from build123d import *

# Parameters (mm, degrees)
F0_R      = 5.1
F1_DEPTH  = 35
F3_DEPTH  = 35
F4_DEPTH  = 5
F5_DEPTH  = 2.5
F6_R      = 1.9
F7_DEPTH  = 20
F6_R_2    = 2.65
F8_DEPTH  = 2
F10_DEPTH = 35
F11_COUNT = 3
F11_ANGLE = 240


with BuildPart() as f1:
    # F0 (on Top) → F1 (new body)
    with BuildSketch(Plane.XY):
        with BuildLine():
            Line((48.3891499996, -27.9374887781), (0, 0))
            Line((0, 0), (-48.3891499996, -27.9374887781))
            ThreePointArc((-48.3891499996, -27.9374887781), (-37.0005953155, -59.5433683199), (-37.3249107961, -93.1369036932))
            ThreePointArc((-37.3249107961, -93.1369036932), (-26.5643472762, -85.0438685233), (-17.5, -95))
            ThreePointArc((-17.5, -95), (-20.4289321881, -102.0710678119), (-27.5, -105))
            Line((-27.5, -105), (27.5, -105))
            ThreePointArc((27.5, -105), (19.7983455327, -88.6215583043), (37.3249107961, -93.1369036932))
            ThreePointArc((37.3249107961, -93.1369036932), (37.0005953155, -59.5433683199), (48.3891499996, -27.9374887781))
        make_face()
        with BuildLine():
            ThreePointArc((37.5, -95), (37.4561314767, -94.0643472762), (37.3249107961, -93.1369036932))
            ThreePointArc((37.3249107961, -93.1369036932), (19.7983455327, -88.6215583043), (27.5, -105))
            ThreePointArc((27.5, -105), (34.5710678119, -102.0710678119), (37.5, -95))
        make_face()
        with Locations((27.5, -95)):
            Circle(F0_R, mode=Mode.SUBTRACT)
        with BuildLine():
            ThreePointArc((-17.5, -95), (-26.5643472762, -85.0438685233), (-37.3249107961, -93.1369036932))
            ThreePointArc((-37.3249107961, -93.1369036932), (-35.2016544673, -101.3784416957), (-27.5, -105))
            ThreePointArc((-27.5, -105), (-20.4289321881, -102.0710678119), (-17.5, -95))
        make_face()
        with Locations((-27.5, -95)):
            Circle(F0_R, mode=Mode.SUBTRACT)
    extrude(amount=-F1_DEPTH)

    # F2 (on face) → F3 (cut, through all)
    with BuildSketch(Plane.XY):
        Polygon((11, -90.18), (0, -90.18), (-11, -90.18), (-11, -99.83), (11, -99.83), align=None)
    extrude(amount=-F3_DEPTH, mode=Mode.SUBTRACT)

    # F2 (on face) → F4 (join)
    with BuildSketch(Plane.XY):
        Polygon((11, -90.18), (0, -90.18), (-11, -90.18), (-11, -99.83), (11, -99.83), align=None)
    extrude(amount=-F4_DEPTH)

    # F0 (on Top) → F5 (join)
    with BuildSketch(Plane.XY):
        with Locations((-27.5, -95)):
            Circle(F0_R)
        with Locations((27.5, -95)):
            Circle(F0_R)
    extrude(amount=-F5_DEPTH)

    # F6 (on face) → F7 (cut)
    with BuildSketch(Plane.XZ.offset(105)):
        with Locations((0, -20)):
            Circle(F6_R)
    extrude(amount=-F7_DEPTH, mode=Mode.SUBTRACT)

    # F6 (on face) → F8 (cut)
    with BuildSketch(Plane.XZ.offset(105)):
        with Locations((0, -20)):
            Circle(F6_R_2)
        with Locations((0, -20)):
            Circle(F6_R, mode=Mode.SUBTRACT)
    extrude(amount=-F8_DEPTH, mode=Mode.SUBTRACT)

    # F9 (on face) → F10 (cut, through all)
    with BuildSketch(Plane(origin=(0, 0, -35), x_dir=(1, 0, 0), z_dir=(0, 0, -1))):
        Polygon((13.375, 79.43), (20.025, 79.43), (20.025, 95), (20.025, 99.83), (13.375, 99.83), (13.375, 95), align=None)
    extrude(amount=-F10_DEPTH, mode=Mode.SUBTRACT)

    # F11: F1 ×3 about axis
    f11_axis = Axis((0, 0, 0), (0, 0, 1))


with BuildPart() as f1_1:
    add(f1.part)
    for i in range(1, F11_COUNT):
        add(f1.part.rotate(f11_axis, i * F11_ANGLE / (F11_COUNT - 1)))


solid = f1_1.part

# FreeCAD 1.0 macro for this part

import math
import FreeCAD as App
import Part
import Sketcher
Q = App.Units.Quantity

doc = App.newDocument("Part")
body = doc.addObject("PartDesign::Body", "Body")

# Sketch on XY plane
sketch1 = doc.addObject("Sketcher::SketchObject", "Sketch")
body.addObject(sketch1)
sketch1.AttachmentSupport = (doc.XY_Plane, [""])
sketch1.MapMode = "FlatFace"
sketch1.addGeometry([
    Part.LineSegment(App.Vector(48.4, -27.9, 0), App.Vector(0, 0, 0)),  # 0
    Part.LineSegment(App.Vector(0, 0, 0), App.Vector(-48.4, -27.9, 0)),  # 1
    Part.ArcOfCircle(Part.Circle(App.Vector(-130.7, -75.4, 0), App.Vector(0, 0, 1), 95), math.radians(-11), math.radians(30)),  # 2
    Part.ArcOfCircle(Part.Circle(App.Vector(-27.5, -95, 0), App.Vector(0, 0, 1), 10), math.radians(169), math.radians(270)),  # 3
    Part.LineSegment(App.Vector(-27.5, -105, 0), App.Vector(27.5, -105, 0)),  # 4
    Part.ArcOfCircle(Part.Circle(App.Vector(27.5, -95, 0), App.Vector(0, 0, 1), 10), math.radians(-90), math.radians(0)),  # 5
    Part.ArcOfCircle(Part.Circle(App.Vector(27.5, -95, 0), App.Vector(0, 0, 1), 10), math.radians(0), math.radians(10.74)),  # 6
    Part.ArcOfCircle(Part.Circle(App.Vector(130.7, -75.4, 0), App.Vector(0, 0, 1), 95), math.radians(150), math.radians(191)),  # 7
    Part.Circle(App.Vector(-27.5, -95, 0), App.Vector(0, 0, 1), 5.1),  # 8
    Part.Circle(App.Vector(27.5, -95, 0), App.Vector(0, 0, 1), 5.1),  # 9
], False)
sketch1.addConstraint([
    Sketcher.Constraint("Coincident", 0, 2, 1, 1),
    Sketcher.Constraint("Coincident", 1, 2, 2, 2),
    Sketcher.Constraint("Tangent", 2, 1, 3, 1),
    Sketcher.Constraint("Tangent", 3, 2, 4, 1),
    Sketcher.Constraint("Tangent", 4, 2, 5, 1),
    Sketcher.Constraint("Tangent", 5, 2, 6, 1),
    Sketcher.Constraint("Tangent", 6, 2, 7, 2),
    Sketcher.Constraint("Coincident", 7, 1, 0, 1),
    Sketcher.Constraint("Horizontal", 4),
    Sketcher.Constraint("Coincident", 0, 2, -1, 1),
    Sketcher.Constraint("Coincident", 8, 3, 3, 3),
    Sketcher.Constraint("Coincident", 9, 3, 5, 3),
    Sketcher.Constraint("Equal", 3, 5),
    Sketcher.Constraint("Equal", 5, 6),
    Sketcher.Constraint("Equal", 2, 7),
    Sketcher.Constraint("Equal", 8, 9),
    Sketcher.Constraint("Symmetric", 2, 3, 7, 3, -2),
    Sketcher.Constraint("Horizontal", 9, 3, 5, 2),
    Sketcher.Constraint("Horizontal", 1, 2, 7, 1),
    Sketcher.Constraint("Radius", 2, Q("95 mm")),
    Sketcher.Constraint("Radius", 3, Q("10 mm")),
    Sketcher.Constraint("Diameter", 8, Q("10.2 mm")),
    Sketcher.Constraint("DistanceX", 4, 1, 4, 2, Q("55 mm")),
    Sketcher.Constraint("Angle", 0, Q("150 deg")),
    Sketcher.Constraint("DistanceY", 3, 3, -1, 1, Q("95 mm")),
    Sketcher.Constraint("DistanceY", 2, 3, 1, 2, Q("47.5 mm")),
])
pad1 = doc.addObject("PartDesign::Pad", "Pad")
body.addObject(pad1)
pad1.Profile = sketch1
pad1.Length = 35
pad1.Reversed = True

# Sketch on XY plane
sketch2 = doc.addObject("Sketcher::SketchObject", "Sketch001")
body.addObject(sketch2)
sketch2.AttachmentSupport = (doc.XY_Plane, [""])
sketch2.MapMode = "FlatFace"
sketch2.addGeometry([
    Part.LineSegment(App.Vector(11, -90, 0), App.Vector(-11, -90, 0)),
    Part.LineSegment(App.Vector(-11, -90, 0), App.Vector(-11, -100, 0)),
    Part.LineSegment(App.Vector(-11, -100, 0), App.Vector(11, -100, 0)),
    Part.LineSegment(App.Vector(11, -100, 0), App.Vector(11, -90, 0)),
], False)
sketch2.addConstraint([
    Sketcher.Constraint("Coincident", 0, 2, 1, 1),
    Sketcher.Constraint("Coincident", 1, 2, 2, 1),
    Sketcher.Constraint("Coincident", 2, 2, 3, 1),
    Sketcher.Constraint("Coincident", 3, 2, 0, 1),
    Sketcher.Constraint("Horizontal", 0),
    Sketcher.Constraint("Vertical", 1),
    Sketcher.Constraint("Horizontal", 2),
    Sketcher.Constraint("Vertical", 3),
    Sketcher.Constraint("DistanceX", 0, 2, 0, 1, Q("22 mm")),
    Sketcher.Constraint("DistanceX", 0, 2, -1, 1, Q("11 mm")),
    Sketcher.Constraint("DistanceY", 1, 2, 1, 1, Q("9.65 mm")),
    Sketcher.Constraint("DistanceY", 0, 2, -1, 1, Q("90.18 mm")),
])
pocket1 = doc.addObject("PartDesign::Pocket", "Pocket")
body.addObject(pocket1)
pocket1.Profile = sketch2
pocket1.Type = "ThroughAll"

# Sketch on XY plane
sketch3 = doc.addObject("Sketcher::SketchObject", "Sketch002")
body.addObject(sketch3)
sketch3.AttachmentSupport = (doc.XY_Plane, [""])
sketch3.MapMode = "FlatFace"
sketch3.addGeometry([
    Part.LineSegment(App.Vector(11, -90, 0), App.Vector(-11, -90, 0)),
    Part.LineSegment(App.Vector(-11, -90, 0), App.Vector(-11, -100, 0)),
    Part.LineSegment(App.Vector(-11, -100, 0), App.Vector(11, -100, 0)),
    Part.LineSegment(App.Vector(11, -100, 0), App.Vector(11, -90, 0)),
], False)
sketch3.addConstraint([
    Sketcher.Constraint("Coincident", 0, 2, 1, 1),
    Sketcher.Constraint("Coincident", 1, 2, 2, 1),
    Sketcher.Constraint("Coincident", 2, 2, 3, 1),
    Sketcher.Constraint("Coincident", 3, 2, 0, 1),
    Sketcher.Constraint("Horizontal", 0),
    Sketcher.Constraint("Vertical", 1),
    Sketcher.Constraint("Horizontal", 2),
    Sketcher.Constraint("Vertical", 3),
    Sketcher.Constraint("DistanceX", 0, 2, 0, 1, Q("22 mm")),
    Sketcher.Constraint("DistanceX", 0, 2, -1, 1, Q("11 mm")),
    Sketcher.Constraint("DistanceY", 1, 2, 1, 1, Q("9.65 mm")),
    Sketcher.Constraint("DistanceY", 0, 2, -1, 1, Q("90.18 mm")),
])
pad2 = doc.addObject("PartDesign::Pad", "Pad001")
body.addObject(pad2)
pad2.Profile = sketch3
pad2.Length = 5
pad2.Reversed = True

# Sketch on XY plane
sketch4 = doc.addObject("Sketcher::SketchObject", "Sketch003")
body.addObject(sketch4)
sketch4.AttachmentSupport = (doc.XY_Plane, [""])
sketch4.MapMode = "FlatFace"
sketch4.addGeometry([
    Part.Circle(App.Vector(-28, -95, 0), App.Vector(0, 0, 1), 5),
    Part.Circle(App.Vector(28, -95, 0), App.Vector(0, 0, 1), 5),
], False)
sketch4.addConstraint([
    Sketcher.Constraint("Equal", 0, 1),
    Sketcher.Constraint("Symmetric", 0, 3, 1, 3, -2),
    Sketcher.Constraint("Diameter", 0, Q("10.2 mm")),
    Sketcher.Constraint("DistanceY", 0, 3, -1, 1, Q("95 mm")),
    Sketcher.Constraint("DistanceX", 0, 3, 1, 3, Q("55 mm")),
])
pad3 = doc.addObject("PartDesign::Pad", "Pad002")
body.addObject(pad3)
pad3.Profile = sketch4
pad3.Length = 2.5
pad3.Reversed = True

# Sketch on XZ plane
sketch5 = doc.addObject("Sketcher::SketchObject", "Sketch004")
body.addObject(sketch5)
sketch5.AttachmentSupport = (doc.XZ_Plane, [""])
sketch5.MapMode = "FlatFace"
sketch5.AttachmentOffset = App.Placement(App.Vector(0, 0, 105), App.Rotation())
sketch5.addGeometry(Part.Circle(App.Vector(0, -20, 0), App.Vector(0, 0, 1), 1.9), False)
sketch5.addConstraint([
    Sketcher.Constraint("PointOnObject", 0, 3, -2),
    Sketcher.Constraint("Diameter", 0, Q("3.8 mm")),
    Sketcher.Constraint("DistanceY", 0, 3, -1, 1, Q("20 mm")),
])
pocket2 = doc.addObject("PartDesign::Pocket", "Pocket001")
body.addObject(pocket2)
pocket2.Profile = sketch5
pocket2.Length = 20

# Sketch on XZ plane
sketch6 = doc.addObject("Sketcher::SketchObject", "Sketch005")
body.addObject(sketch6)
sketch6.AttachmentSupport = (doc.XZ_Plane, [""])
sketch6.MapMode = "FlatFace"
sketch6.AttachmentOffset = App.Placement(App.Vector(0, 0, 105), App.Rotation())
sketch6.addGeometry([
    Part.Circle(App.Vector(0, -20, 0), App.Vector(0, 0, 1), 2.6),
    Part.Circle(App.Vector(0, -20, 0), App.Vector(0, 0, 1), 1.9),
], False)
sketch6.addConstraint([
    Sketcher.Constraint("Coincident", 1, 3, 0, 3),
    Sketcher.Constraint("PointOnObject", 0, 3, -2),
    Sketcher.Constraint("Diameter", 0, Q("5.3 mm")),
    Sketcher.Constraint("Diameter", 1, Q("3.8 mm")),
    Sketcher.Constraint("DistanceY", 0, 3, -1, 1, Q("20 mm")),
])
pocket3 = doc.addObject("PartDesign::Pocket", "Pocket002")
body.addObject(pocket3)
pocket3.Profile = sketch6
pocket3.Length = 2

# Sketch on XY plane
sketch7 = doc.addObject("Sketcher::SketchObject", "Sketch006")
body.addObject(sketch7)
sketch7.AttachmentSupport = (doc.XY_Plane, [""])
sketch7.MapMode = "FlatFace"
sketch7.AttachmentOffset = App.Placement(App.Vector(0, 0, -35), App.Rotation())
sketch7.addGeometry([
    Part.LineSegment(App.Vector(13, -79, 0), App.Vector(20, -79, 0)),
    Part.LineSegment(App.Vector(20, -79, 0), App.Vector(20, -100, 0)),
    Part.LineSegment(App.Vector(20, -100, 0), App.Vector(13, -100, 0)),
    Part.LineSegment(App.Vector(13, -100, 0), App.Vector(13, -79, 0)),
], False)
sketch7.addConstraint([
    Sketcher.Constraint("Coincident", 0, 2, 1, 1),
    Sketcher.Constraint("Coincident", 1, 2, 2, 1),
    Sketcher.Constraint("Coincident", 2, 2, 3, 1),
    Sketcher.Constraint("Coincident", 3, 2, 0, 1),
    Sketcher.Constraint("Horizontal", 0),
    Sketcher.Constraint("Vertical", 1),
    Sketcher.Constraint("Horizontal", 2),
    Sketcher.Constraint("Vertical", 3),
    Sketcher.Constraint("DistanceY", 1, 2, 1, 1, Q("20.4 mm")),
    Sketcher.Constraint("DistanceX", 0, 1, 0, 2, Q("6.65 mm")),
    Sketcher.Constraint("DistanceY", 0, 2, -1, 1, Q("79.43 mm")),
    Sketcher.Constraint("DistanceX", -1, 1, 0, 2, Q("20.025 mm")),
])
pocket4 = doc.addObject("PartDesign::Pocket", "Pocket003")
body.addObject(pocket4)
pocket4.Profile = sketch7
pocket4.Type = "ThroughAll"
pocket4.Reversed = True
body2 = doc.addObject("PartDesign::Body", "Body001")
doc.recompute()

body2.BaseFeature = body
doc.recompute()

body3 = doc.addObject("PartDesign::Body", "Body002")
body3.BaseFeature = body
body3.Placement = App.Placement(App.Vector(0, 0, 0), App.Rotation(App.Vector(0, 0, 1), 120))
boolean = doc.addObject("PartDesign::Boolean", "Boolean")
body2.addObject(boolean)
boolean.Type = "Fuse"
boolean.addObjects([body3])
doc.recompute()

body.Placement = App.Placement(App.Vector(0, 0, 0), App.Rotation(App.Vector(0, 0, 1), 240))
boolean2 = doc.addObject("PartDesign::Boolean", "Boolean001")
body2.addObject(boolean2)
boolean2.Type = "Fuse"
boolean2.addObjects([body])

doc.recompute()
